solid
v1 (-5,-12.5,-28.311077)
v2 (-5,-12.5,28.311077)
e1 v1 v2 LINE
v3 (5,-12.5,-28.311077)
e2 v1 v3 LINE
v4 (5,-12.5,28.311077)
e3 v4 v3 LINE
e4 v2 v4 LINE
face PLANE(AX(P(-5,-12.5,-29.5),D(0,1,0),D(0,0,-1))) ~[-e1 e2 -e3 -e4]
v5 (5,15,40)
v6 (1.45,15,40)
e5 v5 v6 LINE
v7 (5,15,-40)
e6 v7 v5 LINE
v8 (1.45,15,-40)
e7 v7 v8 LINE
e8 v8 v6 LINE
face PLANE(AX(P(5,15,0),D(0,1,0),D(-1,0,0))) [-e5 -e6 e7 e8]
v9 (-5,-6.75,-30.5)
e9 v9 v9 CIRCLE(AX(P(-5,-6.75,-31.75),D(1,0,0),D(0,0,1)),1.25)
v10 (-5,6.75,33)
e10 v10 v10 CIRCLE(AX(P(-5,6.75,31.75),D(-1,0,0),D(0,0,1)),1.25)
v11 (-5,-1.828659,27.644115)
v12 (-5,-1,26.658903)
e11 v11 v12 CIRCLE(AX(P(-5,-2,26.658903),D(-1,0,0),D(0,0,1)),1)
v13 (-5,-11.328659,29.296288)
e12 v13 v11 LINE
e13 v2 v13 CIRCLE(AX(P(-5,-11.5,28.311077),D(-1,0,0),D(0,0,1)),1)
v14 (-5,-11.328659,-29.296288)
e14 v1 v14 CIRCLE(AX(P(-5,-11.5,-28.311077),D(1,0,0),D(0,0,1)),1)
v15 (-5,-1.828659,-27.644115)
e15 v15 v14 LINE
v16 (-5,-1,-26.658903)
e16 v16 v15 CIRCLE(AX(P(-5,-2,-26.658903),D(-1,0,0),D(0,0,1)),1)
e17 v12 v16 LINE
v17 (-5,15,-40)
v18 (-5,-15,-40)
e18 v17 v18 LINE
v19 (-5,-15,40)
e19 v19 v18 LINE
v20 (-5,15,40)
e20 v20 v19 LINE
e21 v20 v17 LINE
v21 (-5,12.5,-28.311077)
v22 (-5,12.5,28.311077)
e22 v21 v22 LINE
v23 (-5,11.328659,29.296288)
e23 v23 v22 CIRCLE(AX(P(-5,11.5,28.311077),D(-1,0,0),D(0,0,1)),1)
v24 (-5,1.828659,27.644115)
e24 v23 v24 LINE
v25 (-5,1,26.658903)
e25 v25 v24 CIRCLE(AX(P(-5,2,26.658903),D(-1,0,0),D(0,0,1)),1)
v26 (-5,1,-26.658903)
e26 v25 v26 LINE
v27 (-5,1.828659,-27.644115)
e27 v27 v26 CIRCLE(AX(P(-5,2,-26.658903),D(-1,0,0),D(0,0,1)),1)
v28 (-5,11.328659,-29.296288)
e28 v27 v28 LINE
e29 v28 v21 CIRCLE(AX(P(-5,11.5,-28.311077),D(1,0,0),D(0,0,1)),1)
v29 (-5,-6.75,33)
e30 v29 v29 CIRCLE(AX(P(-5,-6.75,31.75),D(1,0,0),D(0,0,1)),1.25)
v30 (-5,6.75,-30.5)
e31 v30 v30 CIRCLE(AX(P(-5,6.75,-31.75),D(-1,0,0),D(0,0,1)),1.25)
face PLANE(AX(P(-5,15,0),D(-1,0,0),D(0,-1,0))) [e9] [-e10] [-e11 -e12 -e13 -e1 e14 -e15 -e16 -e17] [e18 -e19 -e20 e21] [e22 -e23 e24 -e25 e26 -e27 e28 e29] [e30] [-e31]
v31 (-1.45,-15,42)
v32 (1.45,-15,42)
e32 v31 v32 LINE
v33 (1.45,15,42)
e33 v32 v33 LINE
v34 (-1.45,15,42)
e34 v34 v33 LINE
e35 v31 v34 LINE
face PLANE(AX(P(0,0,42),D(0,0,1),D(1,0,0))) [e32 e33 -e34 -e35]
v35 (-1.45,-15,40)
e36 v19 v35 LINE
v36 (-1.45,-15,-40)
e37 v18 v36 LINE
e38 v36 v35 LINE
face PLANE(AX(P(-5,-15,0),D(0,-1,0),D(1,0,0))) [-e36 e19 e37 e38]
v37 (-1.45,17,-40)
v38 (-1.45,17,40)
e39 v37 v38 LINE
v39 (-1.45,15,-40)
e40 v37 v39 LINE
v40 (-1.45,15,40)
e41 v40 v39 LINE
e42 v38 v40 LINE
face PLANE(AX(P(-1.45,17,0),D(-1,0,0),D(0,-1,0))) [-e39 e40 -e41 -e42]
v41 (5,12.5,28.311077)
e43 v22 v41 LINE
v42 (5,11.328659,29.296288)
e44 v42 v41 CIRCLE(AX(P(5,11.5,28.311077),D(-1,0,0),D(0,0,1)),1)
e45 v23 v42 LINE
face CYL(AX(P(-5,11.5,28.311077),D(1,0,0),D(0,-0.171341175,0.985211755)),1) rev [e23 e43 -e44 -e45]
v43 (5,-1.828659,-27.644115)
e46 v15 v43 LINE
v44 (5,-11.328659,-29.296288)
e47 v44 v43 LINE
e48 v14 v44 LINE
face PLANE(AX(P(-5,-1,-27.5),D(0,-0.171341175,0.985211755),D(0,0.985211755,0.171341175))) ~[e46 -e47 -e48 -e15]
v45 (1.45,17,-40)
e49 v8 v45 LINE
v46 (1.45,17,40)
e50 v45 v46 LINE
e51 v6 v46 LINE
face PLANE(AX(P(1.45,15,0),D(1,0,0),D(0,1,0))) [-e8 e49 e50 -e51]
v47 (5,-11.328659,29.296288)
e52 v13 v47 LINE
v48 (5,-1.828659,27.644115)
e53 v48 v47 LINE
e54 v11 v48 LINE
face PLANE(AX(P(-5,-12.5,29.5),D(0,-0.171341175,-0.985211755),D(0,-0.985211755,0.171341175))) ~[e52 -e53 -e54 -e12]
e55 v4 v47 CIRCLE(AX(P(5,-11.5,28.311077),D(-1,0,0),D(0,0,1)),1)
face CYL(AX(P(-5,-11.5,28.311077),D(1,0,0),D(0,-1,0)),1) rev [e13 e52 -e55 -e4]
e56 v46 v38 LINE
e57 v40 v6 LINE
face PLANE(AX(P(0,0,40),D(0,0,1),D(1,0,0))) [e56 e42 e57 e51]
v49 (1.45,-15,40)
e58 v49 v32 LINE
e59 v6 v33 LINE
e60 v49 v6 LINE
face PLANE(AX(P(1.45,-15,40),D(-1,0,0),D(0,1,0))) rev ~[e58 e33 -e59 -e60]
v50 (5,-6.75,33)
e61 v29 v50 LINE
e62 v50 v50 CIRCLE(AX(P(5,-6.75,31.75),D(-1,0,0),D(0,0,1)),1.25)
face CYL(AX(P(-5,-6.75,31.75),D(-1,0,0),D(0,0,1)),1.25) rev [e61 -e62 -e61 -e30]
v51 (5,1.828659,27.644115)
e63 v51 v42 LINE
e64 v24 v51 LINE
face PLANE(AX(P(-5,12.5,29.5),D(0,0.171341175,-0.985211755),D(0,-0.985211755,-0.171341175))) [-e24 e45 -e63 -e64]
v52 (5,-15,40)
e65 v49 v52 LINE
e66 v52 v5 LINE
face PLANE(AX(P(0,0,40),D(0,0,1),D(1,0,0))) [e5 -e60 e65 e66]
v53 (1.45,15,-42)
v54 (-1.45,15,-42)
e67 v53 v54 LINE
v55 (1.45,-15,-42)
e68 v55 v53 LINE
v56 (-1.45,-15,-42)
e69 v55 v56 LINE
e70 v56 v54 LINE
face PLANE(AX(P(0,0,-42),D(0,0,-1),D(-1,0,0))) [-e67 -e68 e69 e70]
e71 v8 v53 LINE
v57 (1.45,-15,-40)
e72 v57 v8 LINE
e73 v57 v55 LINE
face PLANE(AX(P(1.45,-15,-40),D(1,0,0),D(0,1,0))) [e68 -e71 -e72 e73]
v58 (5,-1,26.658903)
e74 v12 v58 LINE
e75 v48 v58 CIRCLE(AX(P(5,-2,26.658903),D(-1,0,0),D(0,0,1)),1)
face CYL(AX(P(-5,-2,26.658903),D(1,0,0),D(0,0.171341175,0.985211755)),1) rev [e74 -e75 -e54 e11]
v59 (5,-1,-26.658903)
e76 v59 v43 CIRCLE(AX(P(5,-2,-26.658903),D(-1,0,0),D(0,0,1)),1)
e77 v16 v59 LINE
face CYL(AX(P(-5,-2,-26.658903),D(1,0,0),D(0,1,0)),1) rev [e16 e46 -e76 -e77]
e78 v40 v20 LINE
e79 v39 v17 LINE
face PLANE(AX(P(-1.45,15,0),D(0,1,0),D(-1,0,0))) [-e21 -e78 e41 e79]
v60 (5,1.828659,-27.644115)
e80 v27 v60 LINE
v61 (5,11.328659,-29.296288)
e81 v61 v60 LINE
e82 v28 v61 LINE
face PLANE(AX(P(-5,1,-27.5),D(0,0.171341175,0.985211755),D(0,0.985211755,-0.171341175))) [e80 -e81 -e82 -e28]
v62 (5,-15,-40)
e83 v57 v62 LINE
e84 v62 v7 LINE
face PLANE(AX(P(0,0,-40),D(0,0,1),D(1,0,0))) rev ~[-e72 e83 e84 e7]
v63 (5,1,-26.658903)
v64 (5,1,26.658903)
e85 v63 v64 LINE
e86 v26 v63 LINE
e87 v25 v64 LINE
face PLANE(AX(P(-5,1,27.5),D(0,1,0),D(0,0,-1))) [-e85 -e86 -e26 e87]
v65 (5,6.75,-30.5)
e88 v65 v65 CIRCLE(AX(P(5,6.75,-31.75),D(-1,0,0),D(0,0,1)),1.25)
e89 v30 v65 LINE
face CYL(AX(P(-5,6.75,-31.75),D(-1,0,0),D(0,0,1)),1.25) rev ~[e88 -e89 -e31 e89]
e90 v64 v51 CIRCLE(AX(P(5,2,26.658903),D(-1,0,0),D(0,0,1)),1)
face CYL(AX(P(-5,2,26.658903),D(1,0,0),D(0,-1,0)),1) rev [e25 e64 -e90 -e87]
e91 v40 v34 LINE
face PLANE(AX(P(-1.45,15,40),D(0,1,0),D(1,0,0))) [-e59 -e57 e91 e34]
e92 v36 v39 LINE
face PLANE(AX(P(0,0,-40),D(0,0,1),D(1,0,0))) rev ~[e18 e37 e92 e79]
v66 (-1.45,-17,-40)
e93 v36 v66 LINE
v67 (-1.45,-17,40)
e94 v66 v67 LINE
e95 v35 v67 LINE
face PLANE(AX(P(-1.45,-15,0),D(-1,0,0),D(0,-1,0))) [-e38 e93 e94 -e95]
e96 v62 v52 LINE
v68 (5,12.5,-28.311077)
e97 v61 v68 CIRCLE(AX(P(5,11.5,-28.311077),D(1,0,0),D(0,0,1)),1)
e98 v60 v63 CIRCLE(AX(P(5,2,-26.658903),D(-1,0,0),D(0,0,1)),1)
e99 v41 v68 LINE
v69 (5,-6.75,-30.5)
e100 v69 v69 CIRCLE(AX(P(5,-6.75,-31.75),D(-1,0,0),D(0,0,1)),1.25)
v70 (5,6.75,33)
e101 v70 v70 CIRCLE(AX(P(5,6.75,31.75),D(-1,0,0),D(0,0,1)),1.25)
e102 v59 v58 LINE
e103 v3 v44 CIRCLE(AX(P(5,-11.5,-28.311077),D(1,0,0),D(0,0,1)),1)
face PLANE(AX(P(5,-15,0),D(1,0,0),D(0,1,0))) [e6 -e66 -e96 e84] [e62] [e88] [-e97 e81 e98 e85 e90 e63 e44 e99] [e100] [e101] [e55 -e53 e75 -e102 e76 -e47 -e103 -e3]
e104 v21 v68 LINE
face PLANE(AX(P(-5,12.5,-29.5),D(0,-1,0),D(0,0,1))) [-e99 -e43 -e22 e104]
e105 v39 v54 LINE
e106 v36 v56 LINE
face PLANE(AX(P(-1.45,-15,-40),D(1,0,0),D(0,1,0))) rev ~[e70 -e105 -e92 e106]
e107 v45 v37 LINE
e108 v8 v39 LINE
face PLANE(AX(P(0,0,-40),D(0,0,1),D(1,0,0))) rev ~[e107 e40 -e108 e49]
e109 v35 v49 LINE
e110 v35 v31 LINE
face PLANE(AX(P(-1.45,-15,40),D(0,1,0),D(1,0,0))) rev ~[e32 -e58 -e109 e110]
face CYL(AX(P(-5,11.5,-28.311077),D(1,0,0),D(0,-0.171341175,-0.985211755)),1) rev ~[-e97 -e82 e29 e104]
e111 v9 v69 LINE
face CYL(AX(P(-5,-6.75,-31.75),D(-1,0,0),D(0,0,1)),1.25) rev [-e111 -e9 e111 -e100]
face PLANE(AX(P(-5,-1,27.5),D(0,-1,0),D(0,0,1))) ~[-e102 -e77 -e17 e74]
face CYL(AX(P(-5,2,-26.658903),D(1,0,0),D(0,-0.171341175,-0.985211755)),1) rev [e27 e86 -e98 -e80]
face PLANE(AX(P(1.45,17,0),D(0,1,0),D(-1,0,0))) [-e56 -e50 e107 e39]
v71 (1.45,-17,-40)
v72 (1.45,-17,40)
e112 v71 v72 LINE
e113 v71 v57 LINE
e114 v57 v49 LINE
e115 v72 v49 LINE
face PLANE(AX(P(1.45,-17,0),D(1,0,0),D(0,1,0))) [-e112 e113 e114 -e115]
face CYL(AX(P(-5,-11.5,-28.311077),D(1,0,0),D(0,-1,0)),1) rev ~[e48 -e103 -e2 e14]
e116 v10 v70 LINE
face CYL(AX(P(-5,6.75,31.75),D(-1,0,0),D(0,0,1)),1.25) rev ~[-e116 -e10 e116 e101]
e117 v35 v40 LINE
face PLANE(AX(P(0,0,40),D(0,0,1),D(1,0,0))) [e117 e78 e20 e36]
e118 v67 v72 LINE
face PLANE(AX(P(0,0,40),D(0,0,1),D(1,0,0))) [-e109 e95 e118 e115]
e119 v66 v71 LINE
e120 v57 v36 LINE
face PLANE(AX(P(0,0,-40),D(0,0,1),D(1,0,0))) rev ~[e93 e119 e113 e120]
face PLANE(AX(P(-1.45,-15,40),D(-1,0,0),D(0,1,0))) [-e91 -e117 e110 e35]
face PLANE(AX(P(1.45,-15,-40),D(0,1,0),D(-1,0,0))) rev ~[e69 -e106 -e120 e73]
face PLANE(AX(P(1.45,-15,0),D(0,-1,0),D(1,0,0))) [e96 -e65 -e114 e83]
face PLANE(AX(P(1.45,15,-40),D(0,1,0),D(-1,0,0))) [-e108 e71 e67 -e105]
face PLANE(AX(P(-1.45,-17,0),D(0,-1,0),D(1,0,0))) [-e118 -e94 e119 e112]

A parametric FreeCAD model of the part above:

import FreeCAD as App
import Part
import Sketcher
from FreeCAD import Vector
Q = App.Units.Quantity


def edges_at(feature, points):
    """Names of the edges that pass closest to the given points."""
    edges = feature.Shape.Edges
    near = lambda p: min(range(len(edges)), key=lambda i: edges[i].distToShape(Part.Vertex(*p))[0])
    return sorted({f"Edge{near(p) + 1}" for p in points})


def add_polygon(sketch, points):
    """Adds a closed chain of lines whose ends are joined by coincident constraints."""
    first, n = sketch.GeometryCount, len(points)
    for a, b in zip(points, points[1:] + points[:1]):
        sketch.addGeometry(Part.LineSegment(App.Vector(*a, 0), App.Vector(*b, 0)), False)
    for i in range(n):
        sketch.addConstraint(Sketcher.Constraint("Coincident", first + i, 2, first + (i + 1) % n, 1))

doc = App.newDocument("Part")
body = doc.addObject("PartDesign::Body", "Body")

sketch1 = body.newObject("Sketcher::SketchObject", "Sketch")
sketch1.AttachmentSupport = (doc.getObject("XY_Plane"), [""])
sketch1.MapMode = "FlatFace"
add_polygon(sketch1, [(-5, -15), (-1.4, -15), (-1.4, -17), (1.4, -17), (1.4, -15), (5, -15), (5, 15), (1.4, 15), (1.4, 17), (-1.4, 17), (-1.4, 15), (-5, 15)])
sketch1.addConstraint([
    Sketcher.Constraint("Horizontal", 0),
    Sketcher.Constraint("Vertical", 1),
    Sketcher.Constraint("Horizontal", 2),
    Sketcher.Constraint("Vertical", 3),
    Sketcher.Constraint("Horizontal", 4),
    Sketcher.Constraint("Vertical", 5),
    Sketcher.Constraint("Horizontal", 6),
    Sketcher.Constraint("Vertical", 7),
    Sketcher.Constraint("Horizontal", 8),
    Sketcher.Constraint("Vertical", 9),
    Sketcher.Constraint("Horizontal", 10),
    Sketcher.Constraint("Vertical", 11),
    Sketcher.Constraint("Symmetric", 0, 2, 6, 2, -1, 1),
    Sketcher.Constraint("Symmetric", 2, 2, 8, 2, -1, 1),
    Sketcher.Constraint("Symmetric", 4, 2, 10, 2, -1, 1),
    Sketcher.Constraint("Symmetric", 0, 2, 3, 2, -2),
    Sketcher.Constraint("DistanceY", 1, 2, 1, 1, Q("2 mm")),
    Sketcher.Constraint("DistanceY", 5, 1, 5, 2, Q("30 mm")),
    Sketcher.Constraint("DistanceX", 2, 1, 2, 2, Q("2.9 mm")),
    Sketcher.Constraint("DistanceX", -1, 1, 4, 2, Q("5 mm")),
])
pad1 = body.newObject("PartDesign::Pad", "Pad")
pad1.Profile = sketch1
pad1.Length = 80
pad1.Midplane = True

sketch2 = body.newObject("Sketcher::SketchObject", "Sketch001")
sketch2.AttachmentSupport = (doc.getObject("YZ_Plane"), [""])
sketch2.MapMode = "FlatFace"
sketch2.AttachmentOffset = App.Placement(Vector(0, 0, -5), App.Rotation())
sketch2.addGeometry(Part.Circle(Vector(6.8, -31.8, 0), Vector(0, 0, 1), 1.2), False)
sketch2.addGeometry(Part.Circle(Vector(6.8, 31.8, 0), Vector(0, 0, 1), 1.2), False)
add_polygon(sketch2, [(12.5, 29.5), (12.5, -29.5), (1, -27.5), (1, 27.5)])
sketch2.addConstraint([
    Sketcher.Constraint("Vertical", 2),
    Sketcher.Constraint("Vertical", 4),
    Sketcher.Constraint("Equal", 0, 1),
    Sketcher.Constraint("Symmetric", 0, 3, 1, 3, -1),
    Sketcher.Constraint("Equal", 3, 5),
    Sketcher.Constraint("Diameter", 0, Q("2.5 mm")),
    Sketcher.Constraint("DistanceY", 2, 2, 2, 1, Q("59 mm")),
    Sketcher.Constraint("DistanceY", 4, 1, 4, 2, Q("55 mm")),
    Sketcher.Constraint("DistanceX", -1, 1, 3, 2, Q("1 mm")),
    Sketcher.Constraint("DistanceX", -1, 1, 2, 2, Q("12.5 mm")),
    Sketcher.Constraint("DistanceY", 2, 2, -1, 1, Q("29.5 mm")),
    Sketcher.Constraint("DistanceY", 0, 3, 1, 3, Q("63.5 mm")),
    Sketcher.Constraint("DistanceX", -1, 1, 0, 3, Q("6.75 mm")),
])
pocket1 = body.newObject("PartDesign::Pocket", "Pocket")
pocket1.Profile = sketch2
pocket1.Type = "ThroughAll"
pocket1.Reversed = True
doc.recompute()

fillet = body.newObject("PartDesign::Fillet", "Fillet")
fillet.Base = (pocket1, edges_at(pocket1, [
    (0, 1, -27.5),
    (0, 12.5, -29.5),
    (0, 12.5, 29.5),
    (0, 1, 27.5),
]))
fillet.Radius = 1
doc.recompute()

mirrored = body.newObject("PartDesign::Mirrored", "Mirrored")
mirrored.Originals = [pocket1]
mirrored.MirrorPlane = (doc.getObject("XZ_Plane"), [""])
body.Tip = mirrored
doc.recompute()

fillet2 = body.newObject("PartDesign::Fillet", "Fillet001")
fillet2.Base = (mirrored, edges_at(mirrored, [
    (0, -1, -27.5),
    (0, -12.5, -29.5),
    (0, -12.5, 29.5),
    (0, -1, 27.5),
]))
fillet2.Radius = 1

sketch3 = body.newObject("Sketcher::SketchObject", "Sketch002")
sketch3.AttachmentSupport = (doc.getObject("XY_Plane"), [""])
sketch3.MapMode = "FlatFace"
sketch3.AttachmentOffset = App.Placement(Vector(0, 0, 40), App.Rotation())
add_polygon(sketch3, [(-1.4, 15), (-1.4, -15), (1.4, -15), (1.4, 15)])
sketch3.addConstraint([
    Sketcher.Constraint("Vertical", 0),
    Sketcher.Constraint("Horizontal", 1),
    Sketcher.Constraint("Vertical", 2),
    Sketcher.Constraint("Horizontal", 3),
    Sketcher.Constraint("Symmetric", 0, 2, 2, 2, -1, 1),
    Sketcher.Constraint("DistanceY", 0, 2, 0, 1, Q("30 mm")),
    Sketcher.Constraint("DistanceX", 1, 1, 1, 2, Q("2.9 mm")),
])
pad2 = body.newObject("PartDesign::Pad", "Pad001")
pad2.Profile = sketch3
pad2.Length = 2

sketch4 = body.newObject("Sketcher::SketchObject", "Sketch003")
sketch4.AttachmentSupport = (doc.getObject("XY_Plane"), [""])
sketch4.MapMode = "FlatFace"
sketch4.AttachmentOffset = App.Placement(Vector(0, 0, -40), App.Rotation())
add_polygon(sketch4, [(1.4, 15), (1.4, -15), (-1.4, -15), (-1.4, 15)])
sketch4.addConstraint([
    Sketcher.Constraint("Vertical", 0),
    Sketcher.Constraint("Horizontal", 1),
    Sketcher.Constraint("Vertical", 2),
    Sketcher.Constraint("Horizontal", 3),
    Sketcher.Constraint("Symmetric", 0, 2, 2, 2, -1, 1),
    Sketcher.Constraint("DistanceY", 0, 2, 0, 1, Q("30 mm")),
    Sketcher.Constraint("DistanceX", 1, 2, 1, 1, Q("2.9 mm")),
])
pad3 = body.newObject("PartDesign::Pad", "Pad002")
pad3.Profile = sketch4
pad3.Length = 2
pad3.Reversed = True

doc.recompute()
